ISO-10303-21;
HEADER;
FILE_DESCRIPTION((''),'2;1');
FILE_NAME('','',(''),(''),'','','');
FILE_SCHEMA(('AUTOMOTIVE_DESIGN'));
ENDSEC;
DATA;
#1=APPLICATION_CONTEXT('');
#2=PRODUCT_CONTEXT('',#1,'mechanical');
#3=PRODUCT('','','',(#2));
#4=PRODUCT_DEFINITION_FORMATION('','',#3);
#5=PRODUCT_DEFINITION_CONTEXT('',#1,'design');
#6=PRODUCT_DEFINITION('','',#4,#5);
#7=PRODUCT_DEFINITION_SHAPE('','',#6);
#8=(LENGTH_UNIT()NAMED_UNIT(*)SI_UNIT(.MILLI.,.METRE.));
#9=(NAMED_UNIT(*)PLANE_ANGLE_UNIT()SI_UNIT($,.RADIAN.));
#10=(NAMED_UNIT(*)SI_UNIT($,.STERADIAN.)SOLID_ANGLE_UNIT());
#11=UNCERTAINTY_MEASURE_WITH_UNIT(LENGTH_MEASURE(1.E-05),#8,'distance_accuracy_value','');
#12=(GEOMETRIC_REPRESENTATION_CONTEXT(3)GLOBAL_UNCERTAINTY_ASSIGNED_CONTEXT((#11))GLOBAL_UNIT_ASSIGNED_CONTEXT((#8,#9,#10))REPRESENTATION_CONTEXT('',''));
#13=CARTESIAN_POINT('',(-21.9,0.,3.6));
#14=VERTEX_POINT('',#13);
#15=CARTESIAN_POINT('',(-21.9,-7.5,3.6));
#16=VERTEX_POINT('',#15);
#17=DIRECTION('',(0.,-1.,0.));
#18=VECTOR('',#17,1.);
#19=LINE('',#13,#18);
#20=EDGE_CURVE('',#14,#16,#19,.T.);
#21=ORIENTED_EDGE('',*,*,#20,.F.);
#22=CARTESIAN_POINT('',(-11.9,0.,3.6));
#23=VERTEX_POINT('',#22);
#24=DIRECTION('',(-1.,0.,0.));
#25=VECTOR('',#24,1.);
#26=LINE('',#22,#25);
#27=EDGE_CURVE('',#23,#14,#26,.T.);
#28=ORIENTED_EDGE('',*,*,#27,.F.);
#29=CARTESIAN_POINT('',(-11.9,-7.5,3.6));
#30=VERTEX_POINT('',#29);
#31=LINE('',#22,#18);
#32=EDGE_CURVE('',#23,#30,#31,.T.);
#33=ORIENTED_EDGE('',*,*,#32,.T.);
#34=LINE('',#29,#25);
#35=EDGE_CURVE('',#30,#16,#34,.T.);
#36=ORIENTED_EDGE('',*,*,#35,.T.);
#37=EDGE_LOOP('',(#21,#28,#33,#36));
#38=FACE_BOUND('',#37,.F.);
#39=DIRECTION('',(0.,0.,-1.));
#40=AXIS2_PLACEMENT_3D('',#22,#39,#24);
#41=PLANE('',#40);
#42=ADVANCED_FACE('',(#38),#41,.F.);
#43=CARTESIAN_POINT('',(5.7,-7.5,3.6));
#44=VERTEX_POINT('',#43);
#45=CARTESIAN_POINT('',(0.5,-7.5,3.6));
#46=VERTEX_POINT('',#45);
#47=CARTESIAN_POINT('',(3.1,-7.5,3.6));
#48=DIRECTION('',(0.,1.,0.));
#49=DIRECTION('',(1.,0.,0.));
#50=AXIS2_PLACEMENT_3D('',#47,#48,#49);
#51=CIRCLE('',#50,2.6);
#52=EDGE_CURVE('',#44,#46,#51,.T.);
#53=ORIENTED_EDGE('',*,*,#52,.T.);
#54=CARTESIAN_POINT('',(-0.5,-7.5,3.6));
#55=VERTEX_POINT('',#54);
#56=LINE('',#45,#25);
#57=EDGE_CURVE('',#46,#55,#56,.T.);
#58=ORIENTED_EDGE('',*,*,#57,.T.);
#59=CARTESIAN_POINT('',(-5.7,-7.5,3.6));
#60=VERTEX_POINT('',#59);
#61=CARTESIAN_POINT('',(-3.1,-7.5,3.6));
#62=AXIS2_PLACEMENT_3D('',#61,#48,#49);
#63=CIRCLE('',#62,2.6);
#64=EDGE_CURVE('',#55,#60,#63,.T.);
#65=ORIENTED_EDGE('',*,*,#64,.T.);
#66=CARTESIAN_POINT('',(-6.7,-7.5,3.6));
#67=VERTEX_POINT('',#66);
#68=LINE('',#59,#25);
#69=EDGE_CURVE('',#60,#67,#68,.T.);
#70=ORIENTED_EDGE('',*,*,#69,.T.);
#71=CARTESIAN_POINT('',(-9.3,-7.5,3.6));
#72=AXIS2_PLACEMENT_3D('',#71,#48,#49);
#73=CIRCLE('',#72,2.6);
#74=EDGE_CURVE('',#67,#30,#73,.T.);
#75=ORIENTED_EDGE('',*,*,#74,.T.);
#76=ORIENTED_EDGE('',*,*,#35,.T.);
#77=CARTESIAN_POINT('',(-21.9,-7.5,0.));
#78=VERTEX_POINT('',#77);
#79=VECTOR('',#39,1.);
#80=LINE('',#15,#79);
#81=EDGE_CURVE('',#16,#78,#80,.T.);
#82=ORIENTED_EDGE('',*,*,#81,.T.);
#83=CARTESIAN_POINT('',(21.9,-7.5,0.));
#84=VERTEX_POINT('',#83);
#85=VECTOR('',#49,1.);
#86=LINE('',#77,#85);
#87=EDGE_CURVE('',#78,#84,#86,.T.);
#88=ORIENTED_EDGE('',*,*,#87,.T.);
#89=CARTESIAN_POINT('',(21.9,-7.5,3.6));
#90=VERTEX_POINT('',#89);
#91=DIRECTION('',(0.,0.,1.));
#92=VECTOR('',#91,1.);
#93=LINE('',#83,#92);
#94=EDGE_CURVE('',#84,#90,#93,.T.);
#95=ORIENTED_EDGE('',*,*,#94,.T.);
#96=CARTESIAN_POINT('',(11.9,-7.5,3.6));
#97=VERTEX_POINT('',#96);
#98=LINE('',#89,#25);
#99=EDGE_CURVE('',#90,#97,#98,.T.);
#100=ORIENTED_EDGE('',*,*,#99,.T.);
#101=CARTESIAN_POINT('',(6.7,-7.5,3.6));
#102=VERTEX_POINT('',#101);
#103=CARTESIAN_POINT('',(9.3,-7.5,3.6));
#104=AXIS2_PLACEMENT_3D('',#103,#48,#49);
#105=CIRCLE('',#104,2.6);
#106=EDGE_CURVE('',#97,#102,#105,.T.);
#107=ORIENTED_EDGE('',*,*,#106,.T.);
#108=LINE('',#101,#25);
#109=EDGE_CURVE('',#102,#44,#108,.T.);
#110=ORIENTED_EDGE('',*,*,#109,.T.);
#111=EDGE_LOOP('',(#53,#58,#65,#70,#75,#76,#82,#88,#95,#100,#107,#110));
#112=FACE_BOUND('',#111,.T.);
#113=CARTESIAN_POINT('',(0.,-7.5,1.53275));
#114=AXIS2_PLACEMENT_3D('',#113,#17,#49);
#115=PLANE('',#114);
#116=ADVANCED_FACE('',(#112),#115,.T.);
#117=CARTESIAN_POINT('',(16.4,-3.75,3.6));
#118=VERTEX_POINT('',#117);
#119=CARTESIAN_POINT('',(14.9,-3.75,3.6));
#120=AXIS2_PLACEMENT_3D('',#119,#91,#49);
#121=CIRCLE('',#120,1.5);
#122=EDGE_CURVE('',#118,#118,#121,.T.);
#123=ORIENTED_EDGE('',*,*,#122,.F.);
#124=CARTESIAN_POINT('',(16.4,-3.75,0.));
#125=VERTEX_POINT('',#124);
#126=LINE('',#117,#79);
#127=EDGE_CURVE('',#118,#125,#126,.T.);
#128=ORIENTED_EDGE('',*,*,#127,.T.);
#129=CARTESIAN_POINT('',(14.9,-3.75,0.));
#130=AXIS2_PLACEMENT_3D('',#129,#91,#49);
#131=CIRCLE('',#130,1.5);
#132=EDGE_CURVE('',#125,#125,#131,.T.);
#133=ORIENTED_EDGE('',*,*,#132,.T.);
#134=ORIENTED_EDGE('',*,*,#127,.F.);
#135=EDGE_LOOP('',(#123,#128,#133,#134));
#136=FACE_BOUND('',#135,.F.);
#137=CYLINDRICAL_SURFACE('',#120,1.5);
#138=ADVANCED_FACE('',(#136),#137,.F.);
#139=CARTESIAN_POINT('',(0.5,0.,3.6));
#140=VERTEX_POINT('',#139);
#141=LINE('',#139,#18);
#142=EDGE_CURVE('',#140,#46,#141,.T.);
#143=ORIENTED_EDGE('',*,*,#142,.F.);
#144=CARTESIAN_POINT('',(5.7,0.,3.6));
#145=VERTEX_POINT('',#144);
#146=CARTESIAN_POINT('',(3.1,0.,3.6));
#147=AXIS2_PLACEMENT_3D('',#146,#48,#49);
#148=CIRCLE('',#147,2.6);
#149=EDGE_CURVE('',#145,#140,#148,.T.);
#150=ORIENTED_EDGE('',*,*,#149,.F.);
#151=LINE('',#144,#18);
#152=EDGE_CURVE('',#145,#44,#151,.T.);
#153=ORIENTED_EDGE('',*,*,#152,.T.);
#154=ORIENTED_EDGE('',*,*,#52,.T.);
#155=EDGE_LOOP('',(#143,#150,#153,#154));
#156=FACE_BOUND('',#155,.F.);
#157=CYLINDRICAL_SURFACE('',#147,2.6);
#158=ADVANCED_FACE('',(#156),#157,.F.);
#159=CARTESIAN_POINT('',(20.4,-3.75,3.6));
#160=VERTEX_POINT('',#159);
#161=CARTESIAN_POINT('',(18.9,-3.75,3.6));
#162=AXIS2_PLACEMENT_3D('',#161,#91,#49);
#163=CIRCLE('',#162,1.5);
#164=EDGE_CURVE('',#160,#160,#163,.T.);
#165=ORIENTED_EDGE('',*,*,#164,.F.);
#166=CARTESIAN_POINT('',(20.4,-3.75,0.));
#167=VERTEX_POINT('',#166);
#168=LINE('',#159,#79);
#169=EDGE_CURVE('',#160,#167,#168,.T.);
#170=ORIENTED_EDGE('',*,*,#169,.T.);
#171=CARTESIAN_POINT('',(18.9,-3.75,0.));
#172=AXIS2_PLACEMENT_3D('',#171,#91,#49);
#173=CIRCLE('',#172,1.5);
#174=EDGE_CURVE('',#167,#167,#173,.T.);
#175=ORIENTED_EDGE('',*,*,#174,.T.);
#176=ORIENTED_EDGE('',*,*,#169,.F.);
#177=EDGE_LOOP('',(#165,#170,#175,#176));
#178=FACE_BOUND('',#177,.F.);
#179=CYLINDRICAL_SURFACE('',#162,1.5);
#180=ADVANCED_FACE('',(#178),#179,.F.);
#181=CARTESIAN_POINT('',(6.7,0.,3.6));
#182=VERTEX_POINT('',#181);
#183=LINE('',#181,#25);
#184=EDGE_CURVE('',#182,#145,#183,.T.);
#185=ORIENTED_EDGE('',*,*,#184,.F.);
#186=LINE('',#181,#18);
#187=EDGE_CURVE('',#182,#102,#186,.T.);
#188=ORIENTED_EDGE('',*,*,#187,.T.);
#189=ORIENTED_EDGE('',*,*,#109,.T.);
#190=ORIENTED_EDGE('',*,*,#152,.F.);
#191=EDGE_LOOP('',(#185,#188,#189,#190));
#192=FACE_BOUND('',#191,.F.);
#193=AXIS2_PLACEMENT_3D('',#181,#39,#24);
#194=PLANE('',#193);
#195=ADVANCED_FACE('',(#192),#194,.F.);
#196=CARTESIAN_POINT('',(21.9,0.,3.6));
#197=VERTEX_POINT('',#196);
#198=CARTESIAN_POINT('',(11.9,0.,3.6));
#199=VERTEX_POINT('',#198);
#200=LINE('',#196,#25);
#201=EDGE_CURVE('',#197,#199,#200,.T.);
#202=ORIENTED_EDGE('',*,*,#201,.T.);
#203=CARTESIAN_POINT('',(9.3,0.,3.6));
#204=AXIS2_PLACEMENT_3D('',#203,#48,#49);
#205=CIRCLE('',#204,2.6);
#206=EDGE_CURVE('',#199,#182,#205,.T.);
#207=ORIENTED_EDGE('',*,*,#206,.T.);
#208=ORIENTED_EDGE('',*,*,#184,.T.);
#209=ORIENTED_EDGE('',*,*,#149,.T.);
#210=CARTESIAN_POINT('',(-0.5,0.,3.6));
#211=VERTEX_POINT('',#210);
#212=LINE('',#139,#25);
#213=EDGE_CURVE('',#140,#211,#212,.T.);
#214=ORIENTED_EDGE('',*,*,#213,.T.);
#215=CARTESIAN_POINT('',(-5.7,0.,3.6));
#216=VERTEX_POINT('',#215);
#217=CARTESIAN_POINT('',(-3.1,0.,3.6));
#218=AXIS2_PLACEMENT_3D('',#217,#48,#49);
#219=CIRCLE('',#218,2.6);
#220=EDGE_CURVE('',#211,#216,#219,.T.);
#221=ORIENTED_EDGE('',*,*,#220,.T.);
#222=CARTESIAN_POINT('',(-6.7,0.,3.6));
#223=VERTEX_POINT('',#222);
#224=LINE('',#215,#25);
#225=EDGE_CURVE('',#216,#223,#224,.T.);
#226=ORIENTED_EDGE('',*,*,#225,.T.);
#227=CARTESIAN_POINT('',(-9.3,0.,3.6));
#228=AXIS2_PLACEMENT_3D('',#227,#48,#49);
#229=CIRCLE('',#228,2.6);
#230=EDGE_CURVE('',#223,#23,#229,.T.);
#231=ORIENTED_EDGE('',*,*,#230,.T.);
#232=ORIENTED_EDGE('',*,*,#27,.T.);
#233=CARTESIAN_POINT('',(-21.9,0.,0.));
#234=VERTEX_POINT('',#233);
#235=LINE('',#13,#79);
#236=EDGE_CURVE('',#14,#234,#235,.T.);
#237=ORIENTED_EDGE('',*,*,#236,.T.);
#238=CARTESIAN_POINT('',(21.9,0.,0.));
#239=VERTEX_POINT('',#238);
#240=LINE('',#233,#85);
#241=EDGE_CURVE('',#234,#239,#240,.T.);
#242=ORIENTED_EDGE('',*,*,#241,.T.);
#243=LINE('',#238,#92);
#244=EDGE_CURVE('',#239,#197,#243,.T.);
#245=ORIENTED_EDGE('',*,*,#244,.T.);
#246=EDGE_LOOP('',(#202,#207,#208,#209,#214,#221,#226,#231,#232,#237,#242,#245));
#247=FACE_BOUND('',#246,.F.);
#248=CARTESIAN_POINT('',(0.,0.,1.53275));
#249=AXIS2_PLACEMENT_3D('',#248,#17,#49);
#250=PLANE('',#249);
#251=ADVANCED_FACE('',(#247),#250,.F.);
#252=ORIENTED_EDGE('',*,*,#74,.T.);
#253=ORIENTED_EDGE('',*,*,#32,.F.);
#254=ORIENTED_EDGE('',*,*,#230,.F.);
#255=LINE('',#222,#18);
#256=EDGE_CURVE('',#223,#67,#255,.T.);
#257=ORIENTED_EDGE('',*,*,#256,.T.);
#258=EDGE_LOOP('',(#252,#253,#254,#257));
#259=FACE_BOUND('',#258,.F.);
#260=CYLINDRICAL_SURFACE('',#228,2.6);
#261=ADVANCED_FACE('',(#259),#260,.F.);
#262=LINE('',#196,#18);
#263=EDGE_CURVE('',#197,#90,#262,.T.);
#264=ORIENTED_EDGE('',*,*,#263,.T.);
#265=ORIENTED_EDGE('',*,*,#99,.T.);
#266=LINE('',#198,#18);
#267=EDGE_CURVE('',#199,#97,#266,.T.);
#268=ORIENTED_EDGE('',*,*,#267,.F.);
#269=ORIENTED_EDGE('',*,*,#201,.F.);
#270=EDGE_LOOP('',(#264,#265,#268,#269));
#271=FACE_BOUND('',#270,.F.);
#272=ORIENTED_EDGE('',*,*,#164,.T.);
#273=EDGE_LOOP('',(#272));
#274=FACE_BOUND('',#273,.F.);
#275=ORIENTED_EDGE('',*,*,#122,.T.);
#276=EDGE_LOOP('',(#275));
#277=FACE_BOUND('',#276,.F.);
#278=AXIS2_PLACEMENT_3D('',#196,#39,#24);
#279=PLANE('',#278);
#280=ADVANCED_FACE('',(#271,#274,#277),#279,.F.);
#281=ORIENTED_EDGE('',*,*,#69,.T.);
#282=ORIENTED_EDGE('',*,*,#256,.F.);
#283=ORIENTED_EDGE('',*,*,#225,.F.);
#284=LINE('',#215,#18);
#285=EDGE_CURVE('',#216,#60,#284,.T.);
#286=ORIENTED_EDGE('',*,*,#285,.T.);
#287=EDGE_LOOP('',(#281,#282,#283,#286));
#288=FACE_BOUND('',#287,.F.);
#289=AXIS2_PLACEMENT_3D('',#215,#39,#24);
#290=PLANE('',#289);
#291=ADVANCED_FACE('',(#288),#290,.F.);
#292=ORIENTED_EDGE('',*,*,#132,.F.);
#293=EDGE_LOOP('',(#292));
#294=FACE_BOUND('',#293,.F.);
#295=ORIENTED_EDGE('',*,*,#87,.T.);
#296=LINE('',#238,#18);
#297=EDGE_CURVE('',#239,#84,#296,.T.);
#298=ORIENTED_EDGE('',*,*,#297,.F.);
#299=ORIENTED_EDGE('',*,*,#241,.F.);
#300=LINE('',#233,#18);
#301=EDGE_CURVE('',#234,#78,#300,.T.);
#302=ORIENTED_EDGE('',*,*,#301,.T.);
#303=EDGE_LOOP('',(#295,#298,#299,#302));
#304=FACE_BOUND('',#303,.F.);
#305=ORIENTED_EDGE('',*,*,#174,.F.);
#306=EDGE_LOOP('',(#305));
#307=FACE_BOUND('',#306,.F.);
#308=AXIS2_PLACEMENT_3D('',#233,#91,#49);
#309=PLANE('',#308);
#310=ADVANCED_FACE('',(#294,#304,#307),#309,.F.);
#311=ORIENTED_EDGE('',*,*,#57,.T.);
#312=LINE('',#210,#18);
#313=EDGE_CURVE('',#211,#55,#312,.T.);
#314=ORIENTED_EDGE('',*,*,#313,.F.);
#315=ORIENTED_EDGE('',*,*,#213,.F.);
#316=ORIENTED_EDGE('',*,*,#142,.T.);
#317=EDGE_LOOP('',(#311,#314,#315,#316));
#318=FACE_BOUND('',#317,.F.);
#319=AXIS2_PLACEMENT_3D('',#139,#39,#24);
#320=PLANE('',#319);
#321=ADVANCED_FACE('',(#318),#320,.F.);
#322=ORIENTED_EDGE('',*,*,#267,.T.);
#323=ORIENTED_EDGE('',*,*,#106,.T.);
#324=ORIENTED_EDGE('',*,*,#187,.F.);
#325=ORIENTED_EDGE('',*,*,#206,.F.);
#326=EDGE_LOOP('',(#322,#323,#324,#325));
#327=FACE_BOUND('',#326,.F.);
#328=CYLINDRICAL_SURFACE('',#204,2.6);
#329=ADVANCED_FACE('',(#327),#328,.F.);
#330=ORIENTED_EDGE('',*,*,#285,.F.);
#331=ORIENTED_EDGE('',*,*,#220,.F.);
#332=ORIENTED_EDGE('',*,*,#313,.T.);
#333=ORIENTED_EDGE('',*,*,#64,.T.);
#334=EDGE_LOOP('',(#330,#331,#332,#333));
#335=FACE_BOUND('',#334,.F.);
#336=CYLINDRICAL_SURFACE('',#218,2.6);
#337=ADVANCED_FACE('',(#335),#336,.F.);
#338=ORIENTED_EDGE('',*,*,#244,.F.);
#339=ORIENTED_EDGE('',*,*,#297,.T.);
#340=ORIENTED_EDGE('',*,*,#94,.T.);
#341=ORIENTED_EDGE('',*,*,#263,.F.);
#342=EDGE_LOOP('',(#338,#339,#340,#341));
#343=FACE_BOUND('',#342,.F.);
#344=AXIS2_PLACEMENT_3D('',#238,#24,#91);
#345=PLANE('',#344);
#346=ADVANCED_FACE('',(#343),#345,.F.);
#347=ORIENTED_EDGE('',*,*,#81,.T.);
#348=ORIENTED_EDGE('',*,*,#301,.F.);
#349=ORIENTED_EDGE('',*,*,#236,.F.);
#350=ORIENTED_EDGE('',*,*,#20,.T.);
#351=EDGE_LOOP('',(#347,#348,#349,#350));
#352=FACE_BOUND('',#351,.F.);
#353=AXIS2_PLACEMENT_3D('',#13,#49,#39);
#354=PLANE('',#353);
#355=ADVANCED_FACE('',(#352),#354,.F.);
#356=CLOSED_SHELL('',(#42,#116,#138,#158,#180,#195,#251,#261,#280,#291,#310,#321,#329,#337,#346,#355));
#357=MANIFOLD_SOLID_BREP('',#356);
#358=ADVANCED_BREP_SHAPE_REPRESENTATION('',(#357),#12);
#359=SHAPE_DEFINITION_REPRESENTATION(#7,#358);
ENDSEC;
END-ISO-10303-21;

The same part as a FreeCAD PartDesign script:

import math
import FreeCAD as App
import Part
import Sketcher
from FreeCAD import Vector

doc = App.newDocument("Part")
body = doc.addObject("PartDesign::Body", "Body")

# Sketch on XZ plane
sketch1 = doc.addObject("Sketcher::SketchObject", "Sketch")
body.addObject(sketch1)
sketch1.AttachmentSupport = (doc.XZ_Plane, [""])
sketch1.MapMode = "FlatFace"
sketch1.addGeometry([
    Part.LineSegment(Vector(21.9, 3.6, 0), Vector(11.9, 3.6, 0)),  # 0
    Part.ArcOfCircle(Part.Circle(Vector(9.3, 3.6, 0), Vector(0, 0, 1), 2.6), math.radians(180), math.radians(360)),  # 1
    Part.LineSegment(Vector(6.7, 3.6, 0), Vector(5.7, 3.6, 0)),  # 2
    Part.ArcOfCircle(Part.Circle(Vector(3.1, 3.6, 0), Vector(0, 0, 1), 2.6), math.radians(180), math.radians(360)),  # 3
    Part.LineSegment(Vector(0.5, 3.6, 0), Vector(-0.5, 3.6, 0)),  # 4
    Part.ArcOfCircle(Part.Circle(Vector(-3.1, 3.6, 0), Vector(0, 0, 1), 2.6), math.radians(180), math.radians(360)),  # 5
    Part.LineSegment(Vector(-5.7, 3.6, 0), Vector(-6.7, 3.6, 0)),  # 6
    Part.ArcOfCircle(Part.Circle(Vector(-9.3, 3.6, 0), Vector(0, 0, 1), 2.6), math.radians(180), math.radians(360)),  # 7
    Part.LineSegment(Vector(-11.9, 3.6, 0), Vector(-21.9, 3.6, 0)),  # 8
    Part.LineSegment(Vector(-21.9, 3.6, 0), Vector(-21.9, 0, 0)),  # 9
    Part.LineSegment(Vector(-21.9, 0, 0), Vector(21.9, 0, 0)),  # 10
    Part.LineSegment(Vector(21.9, 0, 0), Vector(21.9, 3.6, 0)),  # 11
], False)
sketch1.addConstraint([
    Sketcher.Constraint("Coincident", 0, 2, 1, 2),
    Sketcher.Constraint("Coincident", 1, 1, 2, 1),
    Sketcher.Constraint("Coincident", 2, 2, 3, 2),
    Sketcher.Constraint("Coincident", 3, 1, 4, 1),
    Sketcher.Constraint("Coincident", 4, 2, 5, 2),
    Sketcher.Constraint("Coincident", 5, 1, 6, 1),
    Sketcher.Constraint("Coincident", 6, 2, 7, 2),
    Sketcher.Constraint("Coincident", 7, 1, 8, 1),
    Sketcher.Constraint("Coincident", 8, 2, 9, 1),
    Sketcher.Constraint("Coincident", 9, 2, 10, 1),
    Sketcher.Constraint("Coincident", 10, 2, 11, 1),
    Sketcher.Constraint("Coincident", 11, 2, 0, 1),
    Sketcher.Constraint("Horizontal", 0),
    Sketcher.Constraint("Horizontal", 2),
    Sketcher.Constraint("Horizontal", 4),
    Sketcher.Constraint("Horizontal", 6),
    Sketcher.Constraint("Horizontal", 8),
    Sketcher.Constraint("Vertical", 9),
    Sketcher.Constraint("Horizontal", 10),
    Sketcher.Constraint("Vertical", 11),
    Sketcher.Constraint("Equal", 1, 3),
    Sketcher.Constraint("Equal", 3, 5),
    Sketcher.Constraint("Equal", 5, 7),
    Sketcher.Constraint("Symmetric", 9, 2, 10, 2, -1, 1),
    Sketcher.Constraint("Symmetric", 3, 3, 5, 3, -2),
    Sketcher.Constraint("Symmetric", 1, 3, 7, 3, -2),
    Sketcher.Constraint("Horizontal", 1, 3, 3, 3),
    Sketcher.Constraint("Horizontal", 7, 3, 0, 2),
    Sketcher.Constraint("Horizontal", 0, 2, 1, 1),
    Sketcher.Constraint("Horizontal", 2, 2, 3, 1),
    Sketcher.Constraint("Horizontal", 4, 2, 5, 1),
    Sketcher.Constraint("Horizontal", 6, 2, 7, 1),
    Sketcher.Constraint("Equal", 2, 4),
    Sketcher.Constraint("Radius", 1, 2.6),
    Sketcher.Constraint("DistanceX", 0, 2, 0, 1, 10.0),
    Sketcher.Constraint("DistanceX", 2, 2, 2, 1, 1.0),
    Sketcher.Constraint("DistanceY", 9, 2, 9, 1, 3.6),
])
pad1 = doc.addObject("PartDesign::Pad", "Pad")
body.addObject(pad1)
pad1.Profile = sketch1
pad1.Length = 7.5

# Sketch on XY plane
sketch2 = doc.addObject("Sketcher::SketchObject", "Sketch001")
body.addObject(sketch2)
sketch2.AttachmentSupport = (doc.XY_Plane, [""])
sketch2.MapMode = "FlatFace"
sketch2.AttachmentOffset = App.Placement(Vector(0, 0, 3.6), App.Rotation())
sketch2.addGeometry([
    Part.Circle(Vector(18.9, -3.8, 0), Vector(0, 0, 1), 1.5),
    Part.Circle(Vector(14.9, -3.8, 0), Vector(0, 0, 1), 1.5),
], False)
sketch2.addConstraint([
    Sketcher.Constraint("Equal", 0, 1),
    Sketcher.Constraint("Horizontal", 0, 3, 1, 3),
    Sketcher.Constraint("Diameter", 0, 3.0),
    Sketcher.Constraint("DistanceX", 1, 3, 0, 3, 4.0),
    Sketcher.Constraint("DistanceX", -1, 1, 0, 3, 18.9),
    Sketcher.Constraint("DistanceY", 0, 3, -1, 1, 3.75),
])
pocket1 = doc.addObject("PartDesign::Pocket", "Pocket")
body.addObject(pocket1)
pocket1.Profile = sketch2
pocket1.Length = 25

doc.recompute()
